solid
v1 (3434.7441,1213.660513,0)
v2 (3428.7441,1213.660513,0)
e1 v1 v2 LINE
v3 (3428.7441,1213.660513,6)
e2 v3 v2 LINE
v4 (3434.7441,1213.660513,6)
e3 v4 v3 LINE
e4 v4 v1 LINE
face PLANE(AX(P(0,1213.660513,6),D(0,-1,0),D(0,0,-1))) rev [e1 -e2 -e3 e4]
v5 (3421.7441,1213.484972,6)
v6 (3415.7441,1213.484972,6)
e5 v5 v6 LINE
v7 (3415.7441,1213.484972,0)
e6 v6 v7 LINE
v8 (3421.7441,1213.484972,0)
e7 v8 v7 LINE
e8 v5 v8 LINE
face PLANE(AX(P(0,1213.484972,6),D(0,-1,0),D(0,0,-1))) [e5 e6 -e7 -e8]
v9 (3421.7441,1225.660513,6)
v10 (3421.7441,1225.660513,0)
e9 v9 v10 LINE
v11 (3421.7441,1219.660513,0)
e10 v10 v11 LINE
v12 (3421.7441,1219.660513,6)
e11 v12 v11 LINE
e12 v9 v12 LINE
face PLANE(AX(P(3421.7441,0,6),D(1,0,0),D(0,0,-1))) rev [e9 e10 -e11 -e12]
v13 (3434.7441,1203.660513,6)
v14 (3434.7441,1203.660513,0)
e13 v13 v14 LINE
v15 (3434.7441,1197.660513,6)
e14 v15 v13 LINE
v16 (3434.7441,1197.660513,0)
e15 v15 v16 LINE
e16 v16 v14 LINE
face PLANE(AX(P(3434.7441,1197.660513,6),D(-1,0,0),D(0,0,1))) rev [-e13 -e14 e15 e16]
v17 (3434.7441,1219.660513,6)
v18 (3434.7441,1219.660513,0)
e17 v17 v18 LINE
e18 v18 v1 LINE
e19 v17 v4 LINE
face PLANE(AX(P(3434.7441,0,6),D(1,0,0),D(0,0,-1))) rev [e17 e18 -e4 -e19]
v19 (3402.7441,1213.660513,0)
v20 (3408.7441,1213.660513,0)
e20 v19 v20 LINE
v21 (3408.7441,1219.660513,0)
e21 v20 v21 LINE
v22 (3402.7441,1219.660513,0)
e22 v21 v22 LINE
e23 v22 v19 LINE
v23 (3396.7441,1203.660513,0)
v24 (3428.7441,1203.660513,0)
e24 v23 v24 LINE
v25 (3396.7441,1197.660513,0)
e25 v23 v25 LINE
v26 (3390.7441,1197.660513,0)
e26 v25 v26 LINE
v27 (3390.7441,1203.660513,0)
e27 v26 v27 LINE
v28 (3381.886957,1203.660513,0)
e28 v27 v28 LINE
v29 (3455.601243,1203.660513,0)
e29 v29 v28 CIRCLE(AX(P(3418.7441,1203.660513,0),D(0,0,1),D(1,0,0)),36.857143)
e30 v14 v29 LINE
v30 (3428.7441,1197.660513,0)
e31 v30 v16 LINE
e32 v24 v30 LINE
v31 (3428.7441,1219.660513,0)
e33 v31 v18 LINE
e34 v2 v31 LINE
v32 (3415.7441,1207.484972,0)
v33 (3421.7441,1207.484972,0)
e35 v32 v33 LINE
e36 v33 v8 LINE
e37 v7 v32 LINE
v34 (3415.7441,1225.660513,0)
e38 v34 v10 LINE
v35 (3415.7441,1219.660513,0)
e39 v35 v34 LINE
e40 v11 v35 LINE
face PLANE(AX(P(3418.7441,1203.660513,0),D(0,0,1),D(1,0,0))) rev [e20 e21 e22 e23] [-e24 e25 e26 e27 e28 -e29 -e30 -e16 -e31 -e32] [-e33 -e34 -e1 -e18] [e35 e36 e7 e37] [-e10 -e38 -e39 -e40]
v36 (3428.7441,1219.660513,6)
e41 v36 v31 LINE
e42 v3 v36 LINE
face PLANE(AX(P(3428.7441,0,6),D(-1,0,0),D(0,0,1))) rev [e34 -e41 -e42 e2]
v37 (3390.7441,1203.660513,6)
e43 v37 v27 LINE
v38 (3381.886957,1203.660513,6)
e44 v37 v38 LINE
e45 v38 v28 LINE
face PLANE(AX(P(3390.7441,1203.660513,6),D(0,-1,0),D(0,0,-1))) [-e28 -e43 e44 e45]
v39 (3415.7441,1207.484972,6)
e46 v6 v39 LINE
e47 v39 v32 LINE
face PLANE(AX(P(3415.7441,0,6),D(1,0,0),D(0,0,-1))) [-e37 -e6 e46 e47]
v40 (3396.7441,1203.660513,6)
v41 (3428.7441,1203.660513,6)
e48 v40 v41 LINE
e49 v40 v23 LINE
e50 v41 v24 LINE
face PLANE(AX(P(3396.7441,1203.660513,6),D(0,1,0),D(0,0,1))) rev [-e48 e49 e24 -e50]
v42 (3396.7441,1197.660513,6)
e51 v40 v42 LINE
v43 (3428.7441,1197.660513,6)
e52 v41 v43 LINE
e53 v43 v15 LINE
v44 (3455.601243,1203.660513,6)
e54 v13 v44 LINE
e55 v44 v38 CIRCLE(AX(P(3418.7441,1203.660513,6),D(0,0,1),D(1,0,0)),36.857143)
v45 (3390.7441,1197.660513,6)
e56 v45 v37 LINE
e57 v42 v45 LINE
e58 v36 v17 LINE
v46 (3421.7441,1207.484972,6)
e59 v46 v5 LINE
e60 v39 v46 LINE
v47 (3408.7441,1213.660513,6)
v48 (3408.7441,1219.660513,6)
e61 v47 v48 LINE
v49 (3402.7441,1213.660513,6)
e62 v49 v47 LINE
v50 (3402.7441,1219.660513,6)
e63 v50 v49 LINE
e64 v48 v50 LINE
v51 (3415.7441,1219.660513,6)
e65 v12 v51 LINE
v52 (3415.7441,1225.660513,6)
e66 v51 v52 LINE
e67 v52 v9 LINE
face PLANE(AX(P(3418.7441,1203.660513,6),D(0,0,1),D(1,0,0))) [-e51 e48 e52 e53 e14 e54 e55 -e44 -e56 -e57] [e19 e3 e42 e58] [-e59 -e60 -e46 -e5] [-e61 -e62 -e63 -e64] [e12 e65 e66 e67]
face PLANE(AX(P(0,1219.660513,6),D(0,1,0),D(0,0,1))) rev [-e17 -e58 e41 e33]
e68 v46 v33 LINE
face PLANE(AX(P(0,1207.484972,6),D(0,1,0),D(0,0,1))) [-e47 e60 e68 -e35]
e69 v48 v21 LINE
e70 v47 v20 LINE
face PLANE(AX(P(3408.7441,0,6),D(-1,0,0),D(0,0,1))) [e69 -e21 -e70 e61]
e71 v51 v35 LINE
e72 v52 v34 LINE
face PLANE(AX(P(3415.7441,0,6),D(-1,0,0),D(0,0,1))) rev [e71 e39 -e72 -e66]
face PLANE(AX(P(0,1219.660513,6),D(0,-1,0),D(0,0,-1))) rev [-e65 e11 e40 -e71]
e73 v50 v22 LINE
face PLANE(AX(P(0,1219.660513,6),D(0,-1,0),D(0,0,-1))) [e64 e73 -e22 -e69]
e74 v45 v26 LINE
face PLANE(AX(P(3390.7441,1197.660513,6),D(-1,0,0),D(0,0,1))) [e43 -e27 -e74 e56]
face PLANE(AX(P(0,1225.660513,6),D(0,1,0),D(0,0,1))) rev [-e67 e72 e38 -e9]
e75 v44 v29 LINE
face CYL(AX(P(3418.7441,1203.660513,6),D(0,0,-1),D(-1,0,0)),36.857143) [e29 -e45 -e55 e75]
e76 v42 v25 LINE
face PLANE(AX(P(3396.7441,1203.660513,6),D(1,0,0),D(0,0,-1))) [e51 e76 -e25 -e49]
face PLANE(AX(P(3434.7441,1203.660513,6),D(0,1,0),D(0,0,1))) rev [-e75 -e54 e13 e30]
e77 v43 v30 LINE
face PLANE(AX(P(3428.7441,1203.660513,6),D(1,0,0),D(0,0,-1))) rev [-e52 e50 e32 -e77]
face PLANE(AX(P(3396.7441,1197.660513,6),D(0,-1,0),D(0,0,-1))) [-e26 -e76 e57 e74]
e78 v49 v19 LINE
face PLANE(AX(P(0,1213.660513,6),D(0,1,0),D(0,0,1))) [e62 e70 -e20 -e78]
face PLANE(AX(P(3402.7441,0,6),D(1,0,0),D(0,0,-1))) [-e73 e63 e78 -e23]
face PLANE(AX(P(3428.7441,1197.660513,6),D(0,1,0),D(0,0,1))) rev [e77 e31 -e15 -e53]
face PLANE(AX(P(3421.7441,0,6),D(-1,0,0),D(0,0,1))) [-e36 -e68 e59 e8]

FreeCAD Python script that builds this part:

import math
import FreeCAD as App
import Part
import Sketcher

V = App.Vector


def add_polygon(sketch, points):
    """Adds a closed chain of lines whose ends are joined by coincident constraints."""
    first, n = sketch.GeometryCount, len(points)
    for a, b in zip(points, points[1:] + points[:1]):
        sketch.addGeometry(Part.LineSegment(App.Vector(*a, 0), App.Vector(*b, 0)), False)
    for i in range(n):
        sketch.addConstraint(Sketcher.Constraint("Coincident", first + i, 2, first + (i + 1) % n, 1))

doc = App.newDocument("Part")
body = doc.addObject("PartDesign::Body", "Body")

# Sketch on XY plane
sketch1 = body.newObject("Sketcher::SketchObject", "Sketch")
sketch1.AttachmentSupport = (doc.getObject("XY_Plane"), [""])
sketch1.MapMode = "FlatFace"
sketch1.addGeometry(Part.LineSegment(V(3428.7441, 1203.660513, 0), V(3428.7441, 1197.660513, 0)), False)  # 0
sketch1.addGeometry(Part.LineSegment(V(3428.7441, 1197.660513, 0), V(3434.7441, 1197.660513, 0)), False)  # 1
sketch1.addGeometry(Part.LineSegment(V(3434.7441, 1197.660513, 0), V(3434.7441, 1203.660513, 0)), False)  # 2
sketch1.addGeometry(Part.LineSegment(V(3434.7441, 1203.660513, 0), V(3455.601243, 1203.660513, 0)), False)  # 3
sketch1.addGeometry(Part.ArcOfCircle(Part.Circle(V(3418.7441, 1203.660513, 0), V(0, 0, 1), 36.857143), math.radians(0), math.radians(180)), False)  # 4
sketch1.addGeometry(Part.LineSegment(V(3381.886957, 1203.660513, 0), V(3390.7441, 1203.660513, 0)), False)  # 5
sketch1.addGeometry(Part.LineSegment(V(3390.7441, 1203.660513, 0), V(3390.7441, 1197.660513, 0)), False)  # 6
sketch1.addGeometry(Part.LineSegment(V(3390.7441, 1197.660513, 0), V(3396.7441, 1197.660513, 0)), False)  # 7
sketch1.addGeometry(Part.LineSegment(V(3396.7441, 1197.660513, 0), V(3396.7441, 1203.660513, 0)), False)  # 8
sketch1.addGeometry(Part.LineSegment(V(3396.7441, 1203.660513, 0), V(3428.7441, 1203.660513, 0)), False)  # 9
add_polygon(sketch1, [(3421.7441, 1207.484972), (3415.7441, 1207.484972), (3415.7441, 1213.484972), (3421.7441, 1213.484972)])  # lines 10-13
add_polygon(sketch1, [(3408.7441, 1213.660513), (3402.7441, 1213.660513), (3402.7441, 1219.660513), (3408.7441, 1219.660513)])  # lines 14-17
add_polygon(sketch1, [(3434.7441, 1213.660513), (3428.7441, 1213.660513), (3428.7441, 1219.660513), (3434.7441, 1219.660513)])  # lines 18-21
add_polygon(sketch1, [(3421.7441, 1219.660513), (3415.7441, 1219.660513), (3415.7441, 1225.660513), (3421.7441, 1225.660513)])  # lines 22-25
sketch1.addConstraint([
    Sketcher.Constraint("Coincident", 0, 2, 1, 1),
    Sketcher.Constraint("Coincident", 1, 2, 2, 1),
    Sketcher.Constraint("Coincident", 2, 2, 3, 1),
    Sketcher.Constraint("Coincident", 3, 2, 4, 1),
    Sketcher.Constraint("Coincident", 4, 2, 5, 1),
    Sketcher.Constraint("Coincident", 5, 2, 6, 1),
    Sketcher.Constraint("Coincident", 6, 2, 7, 1),
    Sketcher.Constraint("Coincident", 7, 2, 8, 1),
    Sketcher.Constraint("Coincident", 8, 2, 9, 1),
    Sketcher.Constraint("Coincident", 9, 2, 0, 1),
    Sketcher.Constraint("Vertical", 0),
    Sketcher.Constraint("Horizontal", 1),
    Sketcher.Constraint("Vertical", 2),
    Sketcher.Constraint("Horizontal", 3),
    Sketcher.Constraint("Horizontal", 5),
    Sketcher.Constraint("Vertical", 6),
    Sketcher.Constraint("Horizontal", 7),
    Sketcher.Constraint("Vertical", 8),
    Sketcher.Constraint("Horizontal", 9),
    Sketcher.Constraint("Horizontal", 10),
    Sketcher.Constraint("Vertical", 11),
    Sketcher.Constraint("Horizontal", 12),
    Sketcher.Constraint("Vertical", 13),
    Sketcher.Constraint("Horizontal", 14),
    Sketcher.Constraint("Vertical", 15),
    Sketcher.Constraint("Horizontal", 16),
    Sketcher.Constraint("Vertical", 17),
    Sketcher.Constraint("Horizontal", 18),
    Sketcher.Constraint("Vertical", 19),
    Sketcher.Constraint("Horizontal", 20),
    Sketcher.Constraint("Vertical", 21),
    Sketcher.Constraint("Horizontal", 22),
    Sketcher.Constraint("Vertical", 23),
    Sketcher.Constraint("Horizontal", 24),
    Sketcher.Constraint("Vertical", 25),
    Sketcher.Constraint("Horizontal", 4, 3, 2, 2),
    Sketcher.Constraint("Horizontal", 3, 2, 4, 2),
    Sketcher.Constraint("Horizontal", 1, 2, 6, 2),
    Sketcher.Constraint("Horizontal", 5, 2, 8, 2),
    Sketcher.Constraint("Horizontal", 17, 2, 18, 2),
    Sketcher.Constraint("Horizontal", 16, 2, 19, 2),
    Sketcher.Constraint("Horizontal", 20, 2, 22, 2),
    Sketcher.Constraint("Vertical", 9, 2, 18, 2),
    Sketcher.Constraint("Vertical", 2, 2, 20, 2),
    Sketcher.Constraint("Vertical", 11, 2, 22, 2),
    Sketcher.Constraint("Vertical", 13, 2, 24, 2),
    Sketcher.Constraint("Equal", 1, 7),
    Sketcher.Constraint("Equal", 7, 10),
    Sketcher.Constraint("Equal", 12, 14),
    Sketcher.Constraint("Equal", 24, 0),
    Sketcher.Constraint("Equal", 8, 11),
    Sketcher.Constraint("Equal", 13, 15),
    Sketcher.Constraint("Equal", 21, 23),
    Sketcher.Constraint("DistanceX", 1, 1, 1, 2, 6.0),
    Sketcher.Constraint("DistanceX", 9, 1, 9, 2, 32.0),
    Sketcher.Constraint("DistanceX", 4, 3, 0, 2, 10.0),
    Sketcher.Constraint("DistanceX", 10, 2, 4, 3, 3.0),
    Sketcher.Constraint("DistanceX", 8, 2, 14, 2, 6.0),
    Sketcher.Constraint("DistanceY", 8, 2, 14, 2, 10.0),
    Sketcher.Constraint("Radius", 4, 36.857143),
    Sketcher.Constraint("DistanceX", -1, 1, 4, 3, 3418.7441),
    Sketcher.Constraint("DistanceY", -1, 1, 10, 2, 1207.484972),
    Sketcher.Constraint("DistanceY", 4, 3, 10, 2, 3.824459),
])
pad1 = body.newObject("PartDesign::Pad", "Pad")
pad1.Profile = sketch1
pad1.Length = 6

doc.recompute()
